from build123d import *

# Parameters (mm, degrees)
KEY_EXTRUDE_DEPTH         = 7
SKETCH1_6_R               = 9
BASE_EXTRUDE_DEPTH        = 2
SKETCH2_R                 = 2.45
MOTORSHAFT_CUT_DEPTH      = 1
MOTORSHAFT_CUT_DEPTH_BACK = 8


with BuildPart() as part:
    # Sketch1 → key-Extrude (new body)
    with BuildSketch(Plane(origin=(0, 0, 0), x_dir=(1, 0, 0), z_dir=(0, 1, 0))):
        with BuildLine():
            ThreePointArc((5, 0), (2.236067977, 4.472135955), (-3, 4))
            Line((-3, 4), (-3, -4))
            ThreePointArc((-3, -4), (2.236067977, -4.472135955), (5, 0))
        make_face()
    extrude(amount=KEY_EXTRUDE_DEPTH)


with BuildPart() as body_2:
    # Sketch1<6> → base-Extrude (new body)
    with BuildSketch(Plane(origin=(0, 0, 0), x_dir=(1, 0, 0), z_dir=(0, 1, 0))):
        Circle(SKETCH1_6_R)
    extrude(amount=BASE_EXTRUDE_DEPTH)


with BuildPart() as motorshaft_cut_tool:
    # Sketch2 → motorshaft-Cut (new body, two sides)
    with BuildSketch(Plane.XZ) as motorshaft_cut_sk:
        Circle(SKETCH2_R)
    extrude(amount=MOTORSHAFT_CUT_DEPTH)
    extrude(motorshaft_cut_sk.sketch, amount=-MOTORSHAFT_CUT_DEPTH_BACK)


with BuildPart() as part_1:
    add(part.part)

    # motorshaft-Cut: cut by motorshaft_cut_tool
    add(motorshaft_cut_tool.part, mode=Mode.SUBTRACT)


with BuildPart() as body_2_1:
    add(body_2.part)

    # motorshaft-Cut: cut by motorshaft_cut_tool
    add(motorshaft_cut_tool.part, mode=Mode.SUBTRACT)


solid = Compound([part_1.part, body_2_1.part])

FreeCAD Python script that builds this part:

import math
import FreeCAD as App
import Part
import Sketcher
Q = App.Units.Quantity

doc = App.newDocument("Part")
body = doc.addObject("PartDesign::Body", "Body")

# Sketch on XZ plane
sketch1 = body.newObject("Sketcher::SketchObject", "Sketch")
sketch1.AttachmentSupport = (doc.getObject("XZ_Plane"), [""])
sketch1.MapMode = "FlatFace"
sketch1.addGeometry([
    Part.ArcOfCircle(Part.Circle(App.Vector(0, 0, 0), App.Vector(0, 0, 1), 5), math.radians(-126.869898), math.radians(0)),
    Part.LineSegment(App.Vector(-3, -4, 0), App.Vector(-3, 4, 0)),
    Part.ArcOfCircle(Part.Circle(App.Vector(0, 0, 0), App.Vector(0, 0, 1), 5), math.radians(0), math.radians(126.869898)),
], False)
sketch1.addConstraint([
    Sketcher.Constraint("Coincident", 0, 1, 1, 1),
    Sketcher.Constraint("Coincident", 1, 2, 2, 2),
    Sketcher.Constraint("Tangent", 2, 1, 0, 2),
    Sketcher.Constraint("Vertical", 1),
    Sketcher.Constraint("Coincident", 0, 3, -1, 1),
    Sketcher.Constraint("Equal", 0, 2),
    Sketcher.Constraint("PointOnObject", 2, 1, -1),
    Sketcher.Constraint("Radius", 0, Q("5 mm")),
    Sketcher.Constraint("DistanceY", 1, 1, 1, 2, Q("8 mm")),
])
pad1 = body.newObject("PartDesign::Pad", "Pad")
pad1.Profile = sketch1
pad1.Length = 7
pad1.Reversed = True
body2 = doc.addObject("PartDesign::Body", "Body001")

# Sketch on XZ plane
sketch2 = body2.newObject("Sketcher::SketchObject", "Sketch001")
sketch2.AttachmentSupport = (doc.getObject("XZ_Plane001"), [""])
sketch2.MapMode = "FlatFace"
sketch2.addGeometry(Part.Circle(App.Vector(0, 0, 0), App.Vector(0, 0, 1), 9), False)
sketch2.addConstraint([
    Sketcher.Constraint("Coincident", 0, 3, -1, 1),
    Sketcher.Constraint("Diameter", 0, Q("18 mm")),
])
pad2 = body2.newObject("PartDesign::Pad", "Pad001")
pad2.Profile = sketch2
pad2.Length = 2
pad2.Reversed = True
body3 = doc.addObject("PartDesign::Body", "Body002")

# Sketch on XZ plane
sketch3 = body3.newObject("Sketcher::SketchObject", "Sketch002")
sketch3.AttachmentSupport = (doc.getObject("XZ_Plane002"), [""])
sketch3.MapMode = "FlatFace"
sketch3.addGeometry(Part.Circle(App.Vector(0, 0, 0), App.Vector(0, 0, 1), 2.45), False)
sketch3.addConstraint([
    Sketcher.Constraint("Coincident", 0, 3, -1, 1),
    Sketcher.Constraint("Diameter", 0, Q("4.9 mm")),
])
pad3 = body3.newObject("PartDesign::Pad", "Pad002")
pad3.Profile = sketch3
pad3.Type = "TwoLengths"
pad3.Length = 1
pad3.Length2 = 8
doc.recompute()

body4 = doc.addObject("PartDesign::Body", "Body003")
body4.BaseFeature = body3
boolean = body.newObject("PartDesign::Boolean", "Boolean")
boolean.Type = "Cut"
boolean.addObjects([body4])
doc.recompute()

boolean2 = body2.newObject("PartDesign::Boolean", "Boolean001")
boolean2.Type = "Cut"
boolean2.addObjects([body3])

doc.recompute()
